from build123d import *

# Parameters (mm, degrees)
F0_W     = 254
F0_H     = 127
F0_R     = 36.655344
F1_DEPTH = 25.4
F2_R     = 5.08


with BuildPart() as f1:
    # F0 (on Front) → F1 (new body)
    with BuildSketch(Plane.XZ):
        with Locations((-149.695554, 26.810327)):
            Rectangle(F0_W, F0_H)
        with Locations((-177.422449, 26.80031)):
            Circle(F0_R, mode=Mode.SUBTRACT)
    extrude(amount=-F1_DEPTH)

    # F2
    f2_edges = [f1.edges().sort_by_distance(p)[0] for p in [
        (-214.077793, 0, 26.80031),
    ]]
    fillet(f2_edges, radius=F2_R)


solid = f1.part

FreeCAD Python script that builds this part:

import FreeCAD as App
import Part
import Sketcher

V = App.Vector
Q = App.Units.Quantity


def edges_at(feature, points):
    """Names of the edges that pass closest to the given points."""
    edges = feature.Shape.Edges
    near = lambda p: min(range(len(edges)), key=lambda i: edges[i].distToShape(Part.Vertex(*p))[0])
    return sorted({f"Edge{near(p) + 1}" for p in points})


def add_polygon(sketch, points):
    """Adds a closed chain of lines whose ends are joined by coincident constraints."""
    first, n = sketch.GeometryCount, len(points)
    for a, b in zip(points, points[1:] + points[:1]):
        sketch.addGeometry(Part.LineSegment(App.Vector(*a, 0), App.Vector(*b, 0)), False)
    for i in range(n):
        sketch.addConstraint(Sketcher.Constraint("Coincident", first + i, 2, first + (i + 1) % n, 1))

doc = App.newDocument("Part")
params = doc.addObject("Spreadsheet::Sheet", "Params")
for row, (alias, value) in enumerate([
    ("sketch1_width", "10 in"),
    ("sketch1_height", "5 in"),
    ("pad1_length", "1 in"),
    ("fillet_radius", "0.2 in"),
], start=1):
    params.set(f"A{row}", alias)
    params.set(f"B{row}", "=" + value)
    params.setAlias(f"B{row}", alias)

body = doc.addObject("PartDesign::Body", "Body")

# Sketch on XZ plane
sketch1 = body.newObject("Sketcher::SketchObject", "Sketch")
sketch1.AttachmentSupport = (doc.getObject("XZ_Plane"), [""])
sketch1.MapMode = "FlatFace"
add_polygon(sketch1, [(-276.695554, 90.310327), (-276.695554, -36.689673), (-22.695554, -36.689673), (-22.695554, 90.310327)])  # lines 0-3
sketch1.addGeometry(Part.Circle(V(-177.422449, 26.80031, 0), V(0, 0, 1), 36.655344), False)  # 4
sketch1.addConstraint(Sketcher.Constraint("Vertical", 0))
sketch1.addConstraint(Sketcher.Constraint("Horizontal", 1))
sketch1.addConstraint(Sketcher.Constraint("Vertical", 2))
sketch1.addConstraint(Sketcher.Constraint("Horizontal", 3))
sketch1.addConstraint(Sketcher.Constraint("DistanceX", 1, 1, 1, 2, Q("10 in")))
sketch1.addConstraint(Sketcher.Constraint("DistanceY", 0, 2, 0, 1, Q("5 in")))
sketch1.addConstraint(Sketcher.Constraint("Diameter", 4, Q("73.310688 mm")))
sketch1.addConstraint(Sketcher.Constraint("DistanceX", 4, 3, -1, 1, Q("177.422449 mm")))
sketch1.addConstraint(Sketcher.Constraint("DistanceY", -1, 1, 4, 3, Q("26.80031 mm")))
sketch1.addConstraint(Sketcher.Constraint("DistanceX", 0, 2, -1, 1, Q("276.695554 mm")))
sketch1.addConstraint(Sketcher.Constraint("DistanceY", 0, 2, -1, 1, Q("36.689673 mm")))
sketch1.setExpression("Constraints[8]", "Params.sketch1_width")
sketch1.setExpression("Constraints[9]", "Params.sketch1_height")
pad1 = body.newObject("PartDesign::Pad", "Pad")
pad1.Profile = sketch1
pad1.setExpression("Length", "Params.pad1_length")
pad1.Reversed = True
doc.recompute()

fillet = body.newObject("PartDesign::Fillet", "Fillet")
fillet.Base = (pad1, edges_at(pad1, [(-214.078, 0, 26.8)]))
fillet.setExpression("Radius", "Params.fillet_radius")

doc.recompute()
